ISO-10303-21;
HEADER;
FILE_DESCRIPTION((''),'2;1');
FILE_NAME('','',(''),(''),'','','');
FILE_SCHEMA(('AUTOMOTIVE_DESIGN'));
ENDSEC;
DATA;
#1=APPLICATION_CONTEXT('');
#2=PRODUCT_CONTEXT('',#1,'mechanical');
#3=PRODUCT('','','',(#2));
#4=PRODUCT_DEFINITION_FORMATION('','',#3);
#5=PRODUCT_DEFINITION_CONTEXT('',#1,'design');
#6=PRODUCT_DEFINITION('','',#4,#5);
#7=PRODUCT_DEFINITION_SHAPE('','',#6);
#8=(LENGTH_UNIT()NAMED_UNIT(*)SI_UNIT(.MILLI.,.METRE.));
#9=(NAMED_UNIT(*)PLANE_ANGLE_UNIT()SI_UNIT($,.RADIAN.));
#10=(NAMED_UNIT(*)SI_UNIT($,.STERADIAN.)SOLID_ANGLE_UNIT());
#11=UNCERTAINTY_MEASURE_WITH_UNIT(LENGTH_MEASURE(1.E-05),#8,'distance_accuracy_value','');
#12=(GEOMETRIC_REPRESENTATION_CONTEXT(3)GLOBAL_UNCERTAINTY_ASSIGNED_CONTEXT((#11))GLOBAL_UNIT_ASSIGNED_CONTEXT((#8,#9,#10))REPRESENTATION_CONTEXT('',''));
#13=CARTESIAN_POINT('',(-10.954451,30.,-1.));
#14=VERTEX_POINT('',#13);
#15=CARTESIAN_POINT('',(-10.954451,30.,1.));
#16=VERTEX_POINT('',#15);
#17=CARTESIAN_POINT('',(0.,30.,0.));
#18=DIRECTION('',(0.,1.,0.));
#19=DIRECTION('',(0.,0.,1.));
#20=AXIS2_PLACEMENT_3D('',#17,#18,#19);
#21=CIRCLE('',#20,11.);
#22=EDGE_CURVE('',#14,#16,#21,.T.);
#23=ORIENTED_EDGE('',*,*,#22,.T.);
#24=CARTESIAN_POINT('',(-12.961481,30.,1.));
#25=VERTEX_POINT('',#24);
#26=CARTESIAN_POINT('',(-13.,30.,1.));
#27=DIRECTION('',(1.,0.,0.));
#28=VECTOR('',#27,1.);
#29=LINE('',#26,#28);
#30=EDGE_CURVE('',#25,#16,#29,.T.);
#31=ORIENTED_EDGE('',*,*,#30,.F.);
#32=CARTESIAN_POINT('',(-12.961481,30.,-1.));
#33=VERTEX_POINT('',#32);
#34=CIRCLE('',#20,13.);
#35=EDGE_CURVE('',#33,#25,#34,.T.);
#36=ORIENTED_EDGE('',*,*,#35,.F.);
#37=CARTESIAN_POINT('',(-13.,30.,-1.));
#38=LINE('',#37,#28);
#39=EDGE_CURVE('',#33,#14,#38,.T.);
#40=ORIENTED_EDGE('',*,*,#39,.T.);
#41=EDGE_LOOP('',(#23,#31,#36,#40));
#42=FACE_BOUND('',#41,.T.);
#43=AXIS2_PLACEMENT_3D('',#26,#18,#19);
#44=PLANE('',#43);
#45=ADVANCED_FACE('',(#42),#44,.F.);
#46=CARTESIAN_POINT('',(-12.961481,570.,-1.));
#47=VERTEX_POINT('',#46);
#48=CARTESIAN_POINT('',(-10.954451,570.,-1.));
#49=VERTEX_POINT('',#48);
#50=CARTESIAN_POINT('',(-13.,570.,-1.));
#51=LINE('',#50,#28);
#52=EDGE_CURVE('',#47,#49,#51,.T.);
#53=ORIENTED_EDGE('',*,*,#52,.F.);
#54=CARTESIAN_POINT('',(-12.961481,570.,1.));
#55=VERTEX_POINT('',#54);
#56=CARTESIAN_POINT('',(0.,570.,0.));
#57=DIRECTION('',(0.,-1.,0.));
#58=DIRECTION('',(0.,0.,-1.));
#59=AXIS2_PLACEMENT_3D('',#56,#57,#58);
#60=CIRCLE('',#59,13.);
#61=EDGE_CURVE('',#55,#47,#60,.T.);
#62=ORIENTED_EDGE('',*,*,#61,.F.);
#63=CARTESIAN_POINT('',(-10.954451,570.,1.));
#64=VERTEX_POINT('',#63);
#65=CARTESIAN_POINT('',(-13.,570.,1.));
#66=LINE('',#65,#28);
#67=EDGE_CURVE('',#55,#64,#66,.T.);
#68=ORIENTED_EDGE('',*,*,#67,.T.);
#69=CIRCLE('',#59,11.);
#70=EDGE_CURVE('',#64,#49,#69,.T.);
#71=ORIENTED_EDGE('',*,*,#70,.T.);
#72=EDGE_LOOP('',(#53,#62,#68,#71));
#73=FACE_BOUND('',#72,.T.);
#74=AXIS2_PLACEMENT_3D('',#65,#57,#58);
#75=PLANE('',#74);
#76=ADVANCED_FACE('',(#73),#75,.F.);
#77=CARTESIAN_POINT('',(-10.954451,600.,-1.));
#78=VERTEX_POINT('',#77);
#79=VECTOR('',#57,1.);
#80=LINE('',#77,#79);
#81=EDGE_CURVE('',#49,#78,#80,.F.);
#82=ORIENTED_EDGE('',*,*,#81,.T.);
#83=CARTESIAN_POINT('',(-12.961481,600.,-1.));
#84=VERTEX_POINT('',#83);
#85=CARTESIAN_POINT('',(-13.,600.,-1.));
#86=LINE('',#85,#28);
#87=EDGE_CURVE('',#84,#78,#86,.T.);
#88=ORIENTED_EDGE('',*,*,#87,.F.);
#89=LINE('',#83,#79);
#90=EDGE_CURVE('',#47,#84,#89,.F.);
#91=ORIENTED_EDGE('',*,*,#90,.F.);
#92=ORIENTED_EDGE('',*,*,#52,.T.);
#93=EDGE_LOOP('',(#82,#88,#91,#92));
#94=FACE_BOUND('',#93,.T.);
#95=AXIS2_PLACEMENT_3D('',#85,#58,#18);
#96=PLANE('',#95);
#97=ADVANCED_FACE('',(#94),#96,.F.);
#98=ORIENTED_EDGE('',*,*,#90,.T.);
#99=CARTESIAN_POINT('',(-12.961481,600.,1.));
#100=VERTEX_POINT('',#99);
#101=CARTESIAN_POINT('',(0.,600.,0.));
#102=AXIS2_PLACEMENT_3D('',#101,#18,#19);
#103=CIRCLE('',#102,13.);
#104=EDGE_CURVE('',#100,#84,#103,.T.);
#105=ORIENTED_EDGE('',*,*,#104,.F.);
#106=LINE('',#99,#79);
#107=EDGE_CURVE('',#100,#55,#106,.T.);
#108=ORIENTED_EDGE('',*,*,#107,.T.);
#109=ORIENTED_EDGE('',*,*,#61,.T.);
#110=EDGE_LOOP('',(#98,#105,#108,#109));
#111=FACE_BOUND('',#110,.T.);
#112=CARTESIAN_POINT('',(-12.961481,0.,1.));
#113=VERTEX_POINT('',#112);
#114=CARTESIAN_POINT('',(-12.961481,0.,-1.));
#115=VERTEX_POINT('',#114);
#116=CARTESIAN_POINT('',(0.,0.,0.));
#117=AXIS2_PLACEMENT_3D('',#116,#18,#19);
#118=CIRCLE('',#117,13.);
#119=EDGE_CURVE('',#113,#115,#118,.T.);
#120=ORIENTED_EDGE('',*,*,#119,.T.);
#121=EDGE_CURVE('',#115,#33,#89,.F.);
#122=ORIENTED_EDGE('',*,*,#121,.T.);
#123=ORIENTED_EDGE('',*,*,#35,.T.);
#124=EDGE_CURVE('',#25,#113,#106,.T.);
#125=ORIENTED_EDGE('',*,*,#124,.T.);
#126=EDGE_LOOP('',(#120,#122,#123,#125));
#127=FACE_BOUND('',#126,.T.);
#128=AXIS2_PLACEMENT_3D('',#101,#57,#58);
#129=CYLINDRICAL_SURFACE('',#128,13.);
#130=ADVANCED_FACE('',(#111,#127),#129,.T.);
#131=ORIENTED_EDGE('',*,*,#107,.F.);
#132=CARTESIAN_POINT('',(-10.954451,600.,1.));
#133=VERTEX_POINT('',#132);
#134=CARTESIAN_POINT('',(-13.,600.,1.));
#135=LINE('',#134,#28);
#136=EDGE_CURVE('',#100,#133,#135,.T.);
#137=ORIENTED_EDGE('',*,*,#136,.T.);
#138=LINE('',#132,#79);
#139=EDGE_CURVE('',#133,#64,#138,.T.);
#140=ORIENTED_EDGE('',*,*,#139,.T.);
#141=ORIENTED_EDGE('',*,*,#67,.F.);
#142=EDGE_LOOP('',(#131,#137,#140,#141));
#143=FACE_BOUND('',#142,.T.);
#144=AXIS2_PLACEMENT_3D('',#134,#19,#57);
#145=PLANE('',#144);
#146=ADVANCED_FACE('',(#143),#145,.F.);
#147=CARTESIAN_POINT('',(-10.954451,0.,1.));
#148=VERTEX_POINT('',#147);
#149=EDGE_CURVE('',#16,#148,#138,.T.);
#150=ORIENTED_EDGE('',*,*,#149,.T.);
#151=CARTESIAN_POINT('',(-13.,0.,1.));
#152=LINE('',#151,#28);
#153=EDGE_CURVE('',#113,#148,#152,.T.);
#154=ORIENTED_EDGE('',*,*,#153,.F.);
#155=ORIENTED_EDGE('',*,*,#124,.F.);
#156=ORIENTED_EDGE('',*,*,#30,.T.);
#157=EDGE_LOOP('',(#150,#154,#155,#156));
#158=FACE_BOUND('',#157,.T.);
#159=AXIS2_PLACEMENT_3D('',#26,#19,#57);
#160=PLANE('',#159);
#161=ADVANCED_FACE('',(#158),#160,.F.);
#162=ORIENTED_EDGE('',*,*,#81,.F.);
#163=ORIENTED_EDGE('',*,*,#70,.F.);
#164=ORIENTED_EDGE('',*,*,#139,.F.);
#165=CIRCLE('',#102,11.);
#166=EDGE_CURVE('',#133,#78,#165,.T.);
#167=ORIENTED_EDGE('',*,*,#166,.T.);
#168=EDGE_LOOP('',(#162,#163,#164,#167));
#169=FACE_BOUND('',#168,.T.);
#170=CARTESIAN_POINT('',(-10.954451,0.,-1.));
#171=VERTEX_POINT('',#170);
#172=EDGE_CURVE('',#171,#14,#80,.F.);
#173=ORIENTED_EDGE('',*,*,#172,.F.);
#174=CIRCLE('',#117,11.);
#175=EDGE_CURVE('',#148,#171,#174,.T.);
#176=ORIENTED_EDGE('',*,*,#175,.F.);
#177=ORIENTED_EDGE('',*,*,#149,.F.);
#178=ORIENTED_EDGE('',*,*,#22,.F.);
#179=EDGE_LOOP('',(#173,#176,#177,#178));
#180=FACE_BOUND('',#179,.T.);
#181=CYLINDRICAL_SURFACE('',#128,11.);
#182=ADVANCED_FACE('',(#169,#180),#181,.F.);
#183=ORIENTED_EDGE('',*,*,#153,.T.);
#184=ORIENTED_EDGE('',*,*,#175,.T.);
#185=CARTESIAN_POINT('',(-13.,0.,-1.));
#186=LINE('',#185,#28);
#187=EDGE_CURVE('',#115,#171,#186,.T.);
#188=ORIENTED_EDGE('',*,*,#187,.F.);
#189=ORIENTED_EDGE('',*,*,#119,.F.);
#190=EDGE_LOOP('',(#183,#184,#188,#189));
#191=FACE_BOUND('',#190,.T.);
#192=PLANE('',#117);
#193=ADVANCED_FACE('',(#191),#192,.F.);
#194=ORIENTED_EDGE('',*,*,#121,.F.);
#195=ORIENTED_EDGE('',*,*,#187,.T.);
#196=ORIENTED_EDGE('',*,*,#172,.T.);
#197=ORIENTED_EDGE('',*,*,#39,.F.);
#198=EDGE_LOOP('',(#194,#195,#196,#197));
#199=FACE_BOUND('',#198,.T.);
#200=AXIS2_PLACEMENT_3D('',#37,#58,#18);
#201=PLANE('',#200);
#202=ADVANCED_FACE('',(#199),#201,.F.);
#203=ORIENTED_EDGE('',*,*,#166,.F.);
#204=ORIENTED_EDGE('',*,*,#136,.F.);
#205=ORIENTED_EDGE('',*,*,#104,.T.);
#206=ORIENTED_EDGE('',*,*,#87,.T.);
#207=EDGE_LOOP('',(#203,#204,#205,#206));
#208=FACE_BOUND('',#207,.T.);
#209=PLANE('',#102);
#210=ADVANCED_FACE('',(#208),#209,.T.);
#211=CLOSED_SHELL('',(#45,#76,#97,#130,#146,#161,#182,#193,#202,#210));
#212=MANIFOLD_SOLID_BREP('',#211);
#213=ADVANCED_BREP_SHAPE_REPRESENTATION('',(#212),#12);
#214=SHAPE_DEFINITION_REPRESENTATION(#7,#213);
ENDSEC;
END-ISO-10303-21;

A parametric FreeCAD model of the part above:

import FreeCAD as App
import Part
import Sketcher
from FreeCAD import Vector
Q = App.Units.Quantity

doc = App.newDocument("Part")
params = doc.addObject("Spreadsheet::Sheet", "Params")
for row, (alias, value) in enumerate([
    ("sketch1_diameter", "26 mm"),
    ("sketch1_diameter2", "22 mm"),
    ("pad1_length", "600 mm"),
    ("sketch2_width", "30 mm"),
    ("sketch2_height", "2 mm"),
], start=1):
    params.set(f"A{row}", alias)
    params.set(f"B{row}", "=" + value)
    params.setAlias(f"B{row}", alias)

body = doc.addObject("PartDesign::Body", "Body")

# Sketch on XZ plane
sketch1 = body.newObject("Sketcher::SketchObject", "Sketch")
sketch1.AttachmentSupport = (doc.getObject("XZ_Plane"), [""])
sketch1.MapMode = "FlatFace"
sketch1.addGeometry([
    Part.Circle(Vector(0, 0, 0), Vector(0, 0, 1), 13),
    Part.Circle(Vector(0, 0, 0), Vector(0, 0, 1), 11),
], False)
sketch1.addConstraint([
    Sketcher.Constraint("Coincident", 0, 3, -1, 1),
    Sketcher.Constraint("Coincident", 1, 3, -1, 1),
    Sketcher.Constraint("Diameter", 0, Q("26 mm")),
    Sketcher.Constraint("Diameter", 1, Q("22 mm")),
])
sketch1.setExpression("Constraints[2]", "Params.sketch1_diameter")
sketch1.setExpression("Constraints[3]", "Params.sketch1_diameter2")
pad1 = body.newObject("PartDesign::Pad", "Pad")
pad1.Profile = sketch1
pad1.setExpression("Length", "Params.pad1_length")
pad1.Reversed = True

# Sketch on YZ plane
sketch2 = body.newObject("Sketcher::SketchObject", "Sketch001")
sketch2.AttachmentSupport = (doc.getObject("YZ_Plane"), [""])
sketch2.MapMode = "FlatFace"
sketch2.addGeometry([
    Part.LineSegment(Vector(600, 1, 0), Vector(570, 1, 0)),  # 0
    Part.LineSegment(Vector(570, 1, 0), Vector(570, -1, 0)),  # 1
    Part.LineSegment(Vector(570, -1, 0), Vector(600, -1, 0)),  # 2
    Part.LineSegment(Vector(600, -1, 0), Vector(600, 1, 0)),  # 3
    Part.LineSegment(Vector(30, 1, 0), Vector(0, 1, 0)),  # 4
    Part.LineSegment(Vector(0, 1, 0), Vector(0, -1, 0)),  # 5
    Part.LineSegment(Vector(0, -1, 0), Vector(30, -1, 0)),  # 6
    Part.LineSegment(Vector(30, -1, 0), Vector(30, 1, 0)),  # 7
], False)
sketch2.addConstraint([
    Sketcher.Constraint("Coincident", 0, 2, 1, 1),
    Sketcher.Constraint("Coincident", 1, 2, 2, 1),
    Sketcher.Constraint("Coincident", 2, 2, 3, 1),
    Sketcher.Constraint("Coincident", 3, 2, 0, 1),
    Sketcher.Constraint("Coincident", 4, 2, 5, 1),
    Sketcher.Constraint("Coincident", 5, 2, 6, 1),
    Sketcher.Constraint("Coincident", 6, 2, 7, 1),
    Sketcher.Constraint("Coincident", 7, 2, 4, 1),
    Sketcher.Constraint("Horizontal", 0),
    Sketcher.Constraint("Vertical", 1),
    Sketcher.Constraint("Horizontal", 2),
    Sketcher.Constraint("Vertical", 3),
    Sketcher.Constraint("Horizontal", 4),
    Sketcher.Constraint("Vertical", 5),
    Sketcher.Constraint("Horizontal", 6),
    Sketcher.Constraint("Vertical", 7),
    Sketcher.Constraint("Symmetric", 4, 2, 5, 2, -1, 1),
    Sketcher.Constraint("Horizontal", 3, 2, 4, 2),
    Sketcher.Constraint("Horizontal", 2, 2, 5, 2),
    Sketcher.Constraint("Equal", 2, 4),
    Sketcher.Constraint("DistanceX", 0, 2, 0, 1, Q("30 mm")),
    Sketcher.Constraint("DistanceY", 1, 2, 1, 1, Q("2 mm")),
    Sketcher.Constraint("DistanceX", -1, 1, 0, 2, Q("570 mm")),
])
sketch2.setExpression("Constraints[20]", "Params.sketch2_width")
sketch2.setExpression("Constraints[21]", "Params.sketch2_height")
pocket1 = body.newObject("PartDesign::Pocket", "Pocket")
pocket1.Profile = sketch2
pocket1.Type = "ThroughAll"

doc.recompute()
